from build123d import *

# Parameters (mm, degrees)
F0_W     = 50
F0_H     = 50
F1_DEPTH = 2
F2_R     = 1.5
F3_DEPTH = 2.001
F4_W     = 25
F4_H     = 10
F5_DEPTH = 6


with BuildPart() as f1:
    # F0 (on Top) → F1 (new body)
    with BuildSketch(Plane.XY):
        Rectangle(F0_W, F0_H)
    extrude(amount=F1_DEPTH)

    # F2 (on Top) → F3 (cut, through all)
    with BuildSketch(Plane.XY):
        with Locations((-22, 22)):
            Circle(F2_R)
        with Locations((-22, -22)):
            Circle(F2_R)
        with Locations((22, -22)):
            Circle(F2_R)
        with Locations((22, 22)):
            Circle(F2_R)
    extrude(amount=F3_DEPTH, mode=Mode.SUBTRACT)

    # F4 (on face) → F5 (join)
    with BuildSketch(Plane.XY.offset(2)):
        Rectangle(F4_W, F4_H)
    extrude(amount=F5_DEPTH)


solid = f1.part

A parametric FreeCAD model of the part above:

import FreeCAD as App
import Part
import Sketcher
from FreeCAD import Vector
Q = App.Units.Quantity


def add_polygon(sketch, points):
    """Adds a closed chain of lines whose ends are joined by coincident constraints."""
    first, n = sketch.GeometryCount, len(points)
    for a, b in zip(points, points[1:] + points[:1]):
        sketch.addGeometry(Part.LineSegment(App.Vector(*a, 0), App.Vector(*b, 0)), False)
    for i in range(n):
        sketch.addConstraint(Sketcher.Constraint("Coincident", first + i, 2, first + (i + 1) % n, 1))

doc = App.newDocument("Part")
params = doc.addObject("Spreadsheet::Sheet", "Params")
for row, (alias, value) in enumerate([
    ("sketch1_width", "50 mm"),
    ("pad1_length", "2 mm"),
    ("sketch2_diameter", "3 mm"),
    ("sketch3_width", "25 mm"),
    ("sketch3_height", "10 mm"),
    ("pad2_length", "6 mm"),
], start=1):
    params.set(f"A{row}", alias)
    params.set(f"B{row}", "=" + value)
    params.setAlias(f"B{row}", alias)

body = doc.addObject("PartDesign::Body", "Body")

# Sketch on XY plane
sketch1 = body.newObject("Sketcher::SketchObject", "Sketch")
sketch1.AttachmentSupport = (doc.getObject("XY_Plane"), [""])
sketch1.MapMode = "FlatFace"
add_polygon(sketch1, [(-25, 25), (-25, -25), (25, -25), (25, 25)])  # lines 0-3
sketch1.addConstraint([
    Sketcher.Constraint("Vertical", 0),
    Sketcher.Constraint("Horizontal", 1),
    Sketcher.Constraint("Vertical", 2),
    Sketcher.Constraint("Horizontal", 3),
    Sketcher.Constraint("Symmetric", 0, 2, 2, 2, -1, 1),
    Sketcher.Constraint("Equal", 3, 0),
    Sketcher.Constraint("DistanceX", 1, 1, 1, 2, Q("50 mm")),
])
sketch1.setExpression("Constraints[10]", "Params.sketch1_width")
pad1 = body.newObject("PartDesign::Pad", "Pad")
pad1.Profile = sketch1
pad1.setExpression("Length", "Params.pad1_length")

# Sketch on XY plane
sketch2 = body.newObject("Sketcher::SketchObject", "Sketch001")
sketch2.AttachmentSupport = (doc.getObject("XY_Plane"), [""])
sketch2.MapMode = "FlatFace"
sketch2.addGeometry([
    Part.Circle(Vector(-22, 22, 0), Vector(0, 0, 1), 1.5),
    Part.Circle(Vector(-22, -22, 0), Vector(0, 0, 1), 1.5),
    Part.Circle(Vector(22, -22, 0), Vector(0, 0, 1), 1.5),
    Part.Circle(Vector(22, 22, 0), Vector(0, 0, 1), 1.5),
], False)
sketch2.addConstraint([
    Sketcher.Constraint("Equal", 0, 1),
    Sketcher.Constraint("Equal", 1, 2),
    Sketcher.Constraint("Equal", 2, 3),
    Sketcher.Constraint("Symmetric", 0, 3, 2, 3, -1, 1),
    Sketcher.Constraint("Symmetric", 1, 3, 3, 3, -1, 1),
    Sketcher.Constraint("Symmetric", 1, 3, 2, 3, -2),
    Sketcher.Constraint("Diameter", 0, Q("3 mm")),
    Sketcher.Constraint("DistanceX", 0, 3, -1, 1, Q("22 mm")),
    Sketcher.Constraint("DistanceY", -1, 1, 0, 3, Q("22 mm")),
])
sketch2.setExpression("Constraints[6]", "Params.sketch2_diameter")
pocket1 = body.newObject("PartDesign::Pocket", "Pocket")
pocket1.Profile = sketch2
pocket1.Type = "ThroughAll"
pocket1.Reversed = True

# Sketch on XY plane
sketch3 = body.newObject("Sketcher::SketchObject", "Sketch002")
sketch3.AttachmentSupport = (doc.getObject("XY_Plane"), [""])
sketch3.MapMode = "FlatFace"
sketch3.AttachmentOffset = App.Placement(Vector(0, 0, 2), App.Rotation())
add_polygon(sketch3, [(-12, 5), (-12, -5), (12, -5), (12, 5)])  # lines 0-3
sketch3.addConstraint([
    Sketcher.Constraint("Vertical", 0),
    Sketcher.Constraint("Horizontal", 1),
    Sketcher.Constraint("Vertical", 2),
    Sketcher.Constraint("Horizontal", 3),
    Sketcher.Constraint("Symmetric", 0, 2, 2, 2, -1, 1),
    Sketcher.Constraint("DistanceX", 1, 1, 1, 2, Q("25 mm")),
    Sketcher.Constraint("DistanceY", 0, 2, 0, 1, Q("10 mm")),
])
sketch3.setExpression("Constraints[9]", "Params.sketch3_width")
sketch3.setExpression("Constraints[10]", "Params.sketch3_height")
pad2 = body.newObject("PartDesign::Pad", "Pad001")
pad2.Profile = sketch3
pad2.setExpression("Length", "Params.pad2_length")

doc.recompute()
